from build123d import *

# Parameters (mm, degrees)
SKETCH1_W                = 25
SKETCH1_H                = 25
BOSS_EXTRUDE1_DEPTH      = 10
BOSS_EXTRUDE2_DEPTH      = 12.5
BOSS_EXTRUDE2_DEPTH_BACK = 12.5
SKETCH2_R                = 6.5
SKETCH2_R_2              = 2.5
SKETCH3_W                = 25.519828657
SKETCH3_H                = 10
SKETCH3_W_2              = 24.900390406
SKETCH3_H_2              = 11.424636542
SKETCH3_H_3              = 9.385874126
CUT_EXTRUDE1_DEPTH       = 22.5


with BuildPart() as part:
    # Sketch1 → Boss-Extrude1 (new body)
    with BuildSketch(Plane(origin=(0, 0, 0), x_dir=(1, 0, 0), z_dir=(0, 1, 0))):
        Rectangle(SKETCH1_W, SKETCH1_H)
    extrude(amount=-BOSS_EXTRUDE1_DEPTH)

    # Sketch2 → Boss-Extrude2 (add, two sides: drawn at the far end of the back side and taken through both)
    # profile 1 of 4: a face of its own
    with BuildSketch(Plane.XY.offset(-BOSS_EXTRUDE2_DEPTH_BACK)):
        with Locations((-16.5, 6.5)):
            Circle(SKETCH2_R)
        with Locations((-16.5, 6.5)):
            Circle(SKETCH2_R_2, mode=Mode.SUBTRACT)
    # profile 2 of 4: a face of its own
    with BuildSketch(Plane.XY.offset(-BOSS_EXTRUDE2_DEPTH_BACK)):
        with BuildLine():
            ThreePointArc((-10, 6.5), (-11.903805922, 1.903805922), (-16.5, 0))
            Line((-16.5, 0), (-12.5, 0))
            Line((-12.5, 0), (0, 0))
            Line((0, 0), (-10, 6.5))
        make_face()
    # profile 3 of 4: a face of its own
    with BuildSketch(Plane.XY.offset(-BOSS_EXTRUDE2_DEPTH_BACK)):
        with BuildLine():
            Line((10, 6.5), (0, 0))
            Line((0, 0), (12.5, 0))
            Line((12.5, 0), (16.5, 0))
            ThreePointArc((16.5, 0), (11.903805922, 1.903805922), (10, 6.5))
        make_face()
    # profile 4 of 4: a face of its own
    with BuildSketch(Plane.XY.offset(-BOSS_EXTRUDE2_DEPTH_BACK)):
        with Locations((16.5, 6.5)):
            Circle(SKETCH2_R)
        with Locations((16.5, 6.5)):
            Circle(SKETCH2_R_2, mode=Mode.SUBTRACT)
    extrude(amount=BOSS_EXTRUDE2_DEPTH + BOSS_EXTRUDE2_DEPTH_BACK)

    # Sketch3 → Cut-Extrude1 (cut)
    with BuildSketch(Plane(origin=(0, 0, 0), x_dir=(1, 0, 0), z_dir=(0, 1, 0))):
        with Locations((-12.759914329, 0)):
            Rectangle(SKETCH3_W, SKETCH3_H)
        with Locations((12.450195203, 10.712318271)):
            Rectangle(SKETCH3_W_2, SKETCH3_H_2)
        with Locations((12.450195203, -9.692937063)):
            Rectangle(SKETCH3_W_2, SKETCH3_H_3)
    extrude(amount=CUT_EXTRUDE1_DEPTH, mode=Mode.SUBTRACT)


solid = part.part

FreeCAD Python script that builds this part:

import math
import FreeCAD as App
import Part
import Sketcher

V = App.Vector
Q = App.Units.Quantity


def add_polygon(sketch, points):
    """Adds a closed chain of lines whose ends are joined by coincident constraints."""
    first, n = sketch.GeometryCount, len(points)
    for a, b in zip(points, points[1:] + points[:1]):
        sketch.addGeometry(Part.LineSegment(App.Vector(*a, 0), App.Vector(*b, 0)), False)
    for i in range(n):
        sketch.addConstraint(Sketcher.Constraint("Coincident", first + i, 2, first + (i + 1) % n, 1))

doc = App.newDocument("Part")
body = doc.addObject("PartDesign::Body", "Body")

sketch1 = body.newObject("Sketcher::SketchObject", "Sketch")
sketch1.AttachmentSupport = (doc.getObject("XZ_Plane"), [""])
sketch1.MapMode = "FlatFace"
add_polygon(sketch1, [(-12, -12), (-12, 12), (12, 12), (12, -12)])
sketch1.addConstraint([
    Sketcher.Constraint("Vertical", 0),
    Sketcher.Constraint("Horizontal", 1),
    Sketcher.Constraint("Vertical", 2),
    Sketcher.Constraint("Horizontal", 3),
    Sketcher.Constraint("Symmetric", 0, 2, 2, 2, -1, 1),
    Sketcher.Constraint("Equal", 3, 0),
    Sketcher.Constraint("DistanceX", 1, 1, 1, 2, Q("25 mm")),
])
pad1 = body.newObject("PartDesign::Pad", "Pad")
pad1.Profile = sketch1
pad1.Length = 10

sketch2 = body.newObject("Sketcher::SketchObject", "Sketch001")
sketch2.AttachmentSupport = (doc.getObject("XY_Plane"), [""])
sketch2.MapMode = "FlatFace"
sketch2.addGeometry([
    Part.ArcOfCircle(Part.Circle(V(-16.5, 6.5, 0), V(0, 0, 1), 6.5), math.radians(0), math.radians(270)),
    Part.LineSegment(V(-16.5, 0, 0), V(0, 0, 0)),
    Part.LineSegment(V(0, 0, 0), V(-10, 6.5, 0)),
    Part.Circle(V(-16.5, 6.5, 0), V(0, 0, 1), 2.5),
    Part.LineSegment(V(10, 6.5, 0), V(0, 0, 0)),
    Part.LineSegment(V(0, 0, 0), V(16.5, 0, 0)),
    Part.ArcOfCircle(Part.Circle(V(16.5, 6.5, 0), V(0, 0, 1), 6.5), math.radians(-90), math.radians(180)),
    Part.Circle(V(16.5, 6.5, 0), V(0, 0, 1), 2.5),
], False)
sketch2.addConstraint([
    Sketcher.Constraint("Tangent", 0, 2, 1, 1),
    Sketcher.Constraint("Coincident", 1, 2, 2, 1),
    Sketcher.Constraint("Coincident", 2, 2, 0, 1),
    Sketcher.Constraint("Coincident", 4, 2, 5, 1),
    Sketcher.Constraint("Tangent", 5, 2, 6, 1),
    Sketcher.Constraint("Coincident", 6, 2, 4, 1),
    Sketcher.Constraint("Horizontal", 1),
    Sketcher.Constraint("Horizontal", 5),
    Sketcher.Constraint("Coincident", 1, 2, -1, 1),
    Sketcher.Constraint("Coincident", 4, 2, -1, 1),
    Sketcher.Constraint("Coincident", 3, 3, 0, 3),
    Sketcher.Constraint("Coincident", 7, 3, 6, 3),
    Sketcher.Constraint("Equal", 0, 6),
    Sketcher.Constraint("Equal", 3, 7),
    Sketcher.Constraint("Symmetric", 2, 2, 6, 2, -2),
    Sketcher.Constraint("Horizontal", 7, 3, 2, 2),
    Sketcher.Constraint("Diameter", 3, Q("5 mm")),
    Sketcher.Constraint("Radius", 0, Q("6.5 mm")),
    Sketcher.Constraint("DistanceX", 1, 1, 1, 2, Q("16.5 mm")),
])
pad2 = body.newObject("PartDesign::Pad", "Pad001")
pad2.Profile = sketch2
pad2.Type = "TwoLengths"
pad2.Length = 12.5
pad2.Length2 = 12.5

sketch3 = body.newObject("Sketcher::SketchObject", "Sketch002")
sketch3.AttachmentSupport = (doc.getObject("XZ_Plane"), [""])
sketch3.MapMode = "FlatFace"
add_polygon(sketch3, [(-26, -5), (-26, 5), (0, 5), (0, -5)])
add_polygon(sketch3, [(0, -16), (0, -5), (25, -5), (25, -16)])
add_polygon(sketch3, [(0, 5), (0, 14), (25, 14), (25, 5)])
sketch3.addConstraint([
    Sketcher.Constraint("Vertical", 0),
    Sketcher.Constraint("Horizontal", 1),
    Sketcher.Constraint("Vertical", 2),
    Sketcher.Constraint("Horizontal", 3),
    Sketcher.Constraint("Vertical", 4),
    Sketcher.Constraint("Horizontal", 5),
    Sketcher.Constraint("Vertical", 6),
    Sketcher.Constraint("Horizontal", 7),
    Sketcher.Constraint("Vertical", 8),
    Sketcher.Constraint("Horizontal", 9),
    Sketcher.Constraint("Vertical", 10),
    Sketcher.Constraint("Horizontal", 11),
    Sketcher.Constraint("Coincident", 4, 2, 2, 2),
    Sketcher.Constraint("Coincident", 11, 2, 1, 2),
    Sketcher.Constraint("Symmetric", 1, 2, 2, 2, -1, 1),
    Sketcher.Constraint("Vertical", 6, 2, 9, 2),
    Sketcher.Constraint("DistanceY", 0, 1, 0, 2, Q("10 mm")),
    Sketcher.Constraint("DistanceX", 1, 1, 1, 2, Q("25.519829 mm")),
    Sketcher.Constraint("DistanceX", 5, 1, 5, 2, Q("24.90039 mm")),
    Sketcher.Constraint("DistanceY", 4, 1, 4, 2, Q("11.424637 mm")),
    Sketcher.Constraint("DistanceY", 8, 1, 8, 2, Q("9.385874 mm")),
])
pocket1 = body.newObject("PartDesign::Pocket", "Pocket")
pocket1.Profile = sketch3
pocket1.Length = 22.5

doc.recompute()
